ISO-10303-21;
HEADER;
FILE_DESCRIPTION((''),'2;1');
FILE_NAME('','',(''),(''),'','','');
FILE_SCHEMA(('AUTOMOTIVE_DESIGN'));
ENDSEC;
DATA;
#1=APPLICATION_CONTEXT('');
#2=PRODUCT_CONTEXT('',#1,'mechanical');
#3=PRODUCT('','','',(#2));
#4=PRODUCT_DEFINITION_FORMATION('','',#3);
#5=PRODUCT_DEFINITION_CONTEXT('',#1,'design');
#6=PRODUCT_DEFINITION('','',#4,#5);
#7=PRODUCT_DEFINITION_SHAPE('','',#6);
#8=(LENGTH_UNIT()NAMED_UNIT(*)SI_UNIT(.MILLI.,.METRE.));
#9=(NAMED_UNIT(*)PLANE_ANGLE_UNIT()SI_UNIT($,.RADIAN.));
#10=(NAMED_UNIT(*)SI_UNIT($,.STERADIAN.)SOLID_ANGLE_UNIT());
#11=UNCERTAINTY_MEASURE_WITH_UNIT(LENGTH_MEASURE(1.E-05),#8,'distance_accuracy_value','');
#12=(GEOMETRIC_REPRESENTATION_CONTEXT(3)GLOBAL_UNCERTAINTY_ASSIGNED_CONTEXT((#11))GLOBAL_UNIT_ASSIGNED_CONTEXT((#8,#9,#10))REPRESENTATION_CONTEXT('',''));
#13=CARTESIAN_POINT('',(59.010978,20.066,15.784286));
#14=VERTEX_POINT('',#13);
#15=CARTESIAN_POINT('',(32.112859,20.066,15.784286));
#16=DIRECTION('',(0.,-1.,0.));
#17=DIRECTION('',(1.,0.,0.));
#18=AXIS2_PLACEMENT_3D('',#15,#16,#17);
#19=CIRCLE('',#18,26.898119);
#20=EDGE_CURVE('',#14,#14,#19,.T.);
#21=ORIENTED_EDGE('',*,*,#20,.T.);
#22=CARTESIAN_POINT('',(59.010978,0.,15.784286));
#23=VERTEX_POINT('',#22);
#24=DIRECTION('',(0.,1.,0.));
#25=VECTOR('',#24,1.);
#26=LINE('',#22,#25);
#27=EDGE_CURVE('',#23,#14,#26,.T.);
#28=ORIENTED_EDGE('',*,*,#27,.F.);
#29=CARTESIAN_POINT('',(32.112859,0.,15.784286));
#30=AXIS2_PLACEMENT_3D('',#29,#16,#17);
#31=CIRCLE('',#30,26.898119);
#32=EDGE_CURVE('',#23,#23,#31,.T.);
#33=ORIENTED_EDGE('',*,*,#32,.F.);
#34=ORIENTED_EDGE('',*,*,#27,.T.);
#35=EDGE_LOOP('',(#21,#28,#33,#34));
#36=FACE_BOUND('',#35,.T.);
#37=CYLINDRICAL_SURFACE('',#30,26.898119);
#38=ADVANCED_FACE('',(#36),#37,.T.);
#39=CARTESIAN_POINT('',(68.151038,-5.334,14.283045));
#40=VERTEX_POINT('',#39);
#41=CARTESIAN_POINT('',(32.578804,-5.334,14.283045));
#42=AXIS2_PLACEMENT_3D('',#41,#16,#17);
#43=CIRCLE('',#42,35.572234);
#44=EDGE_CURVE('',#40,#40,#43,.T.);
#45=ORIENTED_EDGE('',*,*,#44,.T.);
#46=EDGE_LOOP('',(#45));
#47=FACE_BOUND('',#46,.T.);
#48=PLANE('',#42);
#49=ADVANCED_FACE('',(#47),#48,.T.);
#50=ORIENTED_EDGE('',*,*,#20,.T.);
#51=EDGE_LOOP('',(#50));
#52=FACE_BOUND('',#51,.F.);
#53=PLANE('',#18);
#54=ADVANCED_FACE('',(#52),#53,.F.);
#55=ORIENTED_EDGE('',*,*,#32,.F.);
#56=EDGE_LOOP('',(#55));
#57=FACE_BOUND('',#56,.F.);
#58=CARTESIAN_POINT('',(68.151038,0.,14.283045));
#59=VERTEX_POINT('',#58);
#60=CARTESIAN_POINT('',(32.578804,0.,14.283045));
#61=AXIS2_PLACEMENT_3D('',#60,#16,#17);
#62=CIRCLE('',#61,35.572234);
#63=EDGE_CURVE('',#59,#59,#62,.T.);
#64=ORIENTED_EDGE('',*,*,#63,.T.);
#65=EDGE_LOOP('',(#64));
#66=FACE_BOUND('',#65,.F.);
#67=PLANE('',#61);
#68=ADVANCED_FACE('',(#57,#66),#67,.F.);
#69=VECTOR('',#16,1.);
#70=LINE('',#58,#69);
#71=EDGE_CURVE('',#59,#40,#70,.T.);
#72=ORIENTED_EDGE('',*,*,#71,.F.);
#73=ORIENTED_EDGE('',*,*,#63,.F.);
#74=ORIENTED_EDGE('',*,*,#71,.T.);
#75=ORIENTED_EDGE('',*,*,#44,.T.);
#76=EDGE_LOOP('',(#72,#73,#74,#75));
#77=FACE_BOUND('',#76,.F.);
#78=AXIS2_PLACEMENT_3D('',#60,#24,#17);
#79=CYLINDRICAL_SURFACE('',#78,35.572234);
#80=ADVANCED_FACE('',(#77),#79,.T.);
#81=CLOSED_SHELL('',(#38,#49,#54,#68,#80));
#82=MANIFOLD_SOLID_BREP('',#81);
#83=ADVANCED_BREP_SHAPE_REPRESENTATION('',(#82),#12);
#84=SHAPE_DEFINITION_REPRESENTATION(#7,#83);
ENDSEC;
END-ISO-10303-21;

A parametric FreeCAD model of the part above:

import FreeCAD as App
import Part
import Sketcher
Q = App.Units.Quantity

doc = App.newDocument("Part")
body = doc.addObject("PartDesign::Body", "Body")

# Sketch on XZ plane
sketch1 = body.newObject("Sketcher::SketchObject", "Sketch")
sketch1.AttachmentSupport = (doc.getObject("XZ_Plane"), [""])
sketch1.MapMode = "FlatFace"
sketch1.addGeometry(Part.Circle(App.Vector(33, 14, 0), App.Vector(0, 0, 1), 36), False)
sketch1.addConstraint([
    Sketcher.Constraint("Diameter", 0, 71.144468),
    Sketcher.Constraint("DistanceX", -1, 1, 0, 3, 32.578804),
    Sketcher.Constraint("DistanceY", -1, 1, 0, 3, 14.283045),
])
pad1 = body.newObject("PartDesign::Pad", "Pad")
pad1.Profile = sketch1
pad1.Length = Q("0.21 in")

# Sketch on XZ plane
sketch2 = body.newObject("Sketcher::SketchObject", "Sketch001")
sketch2.AttachmentSupport = (doc.getObject("XZ_Plane"), [""])
sketch2.MapMode = "FlatFace"
sketch2.addGeometry(Part.Circle(App.Vector(32, 16, 0), App.Vector(0, 0, 1), 27), False)
sketch2.addConstraint([
    Sketcher.Constraint("Diameter", 0, 53.796238),
    Sketcher.Constraint("DistanceX", -1, 1, 0, 3, 32.112859),
    Sketcher.Constraint("DistanceY", -1, 1, 0, 3, 15.784286),
])
pad2 = body.newObject("PartDesign::Pad", "Pad001")
pad2.Profile = sketch2
pad2.Length = Q("0.79 in")
pad2.Reversed = True

doc.recompute()
